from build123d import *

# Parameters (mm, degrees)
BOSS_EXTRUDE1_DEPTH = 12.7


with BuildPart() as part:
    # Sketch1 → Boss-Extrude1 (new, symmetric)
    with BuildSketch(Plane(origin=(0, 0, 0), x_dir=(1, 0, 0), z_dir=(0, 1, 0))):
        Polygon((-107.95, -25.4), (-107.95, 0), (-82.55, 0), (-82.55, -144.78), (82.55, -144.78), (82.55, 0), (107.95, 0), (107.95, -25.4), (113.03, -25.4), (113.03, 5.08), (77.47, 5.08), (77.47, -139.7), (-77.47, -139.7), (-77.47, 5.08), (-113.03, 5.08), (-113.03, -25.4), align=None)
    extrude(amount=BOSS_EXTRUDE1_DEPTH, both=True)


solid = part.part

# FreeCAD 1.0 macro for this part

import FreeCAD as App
import Part
import Sketcher
Q = App.Units.Quantity

doc = App.newDocument("Part")
body = doc.addObject("PartDesign::Body", "Body")

sketch1 = body.newObject("Sketcher::SketchObject", "Sketch")
sketch1.AttachmentSupport = (doc.getObject("XZ_Plane"), [""])
sketch1.MapMode = "FlatFace"
sketch1.addGeometry(Part.LineSegment(App.Vector(-107.95, 25.4, 0), App.Vector(-107.95, 0, 0)), False)
sketch1.addGeometry(Part.LineSegment(App.Vector(-107.95, 0, 0), App.Vector(-82.55, 0, 0)), False)
sketch1.addGeometry(Part.LineSegment(App.Vector(-82.55, 0, 0), App.Vector(-82.55, 144.78, 0)), False)
sketch1.addGeometry(Part.LineSegment(App.Vector(-82.55, 144.78, 0), App.Vector(82.55, 144.78, 0)), False)
sketch1.addGeometry(Part.LineSegment(App.Vector(82.55, 144.78, 0), App.Vector(82.55, 0, 0)), False)
sketch1.addGeometry(Part.LineSegment(App.Vector(82.55, 0, 0), App.Vector(107.95, 0, 0)), False)
sketch1.addGeometry(Part.LineSegment(App.Vector(107.95, 0, 0), App.Vector(107.95, 25.4, 0)), False)
sketch1.addGeometry(Part.LineSegment(App.Vector(107.95, 25.4, 0), App.Vector(113.03, 25.4, 0)), False)
sketch1.addGeometry(Part.LineSegment(App.Vector(113.03, 25.4, 0), App.Vector(113.03, -5.08, 0)), False)
sketch1.addGeometry(Part.LineSegment(App.Vector(113.03, -5.08, 0), App.Vector(77.47, -5.08, 0)), False)
sketch1.addGeometry(Part.LineSegment(App.Vector(77.47, -5.08, 0), App.Vector(77.47, 139.7, 0)), False)
sketch1.addGeometry(Part.LineSegment(App.Vector(77.47, 139.7, 0), App.Vector(-77.47, 139.7, 0)), False)
sketch1.addGeometry(Part.LineSegment(App.Vector(-77.47, 139.7, 0), App.Vector(-77.47, -5.08, 0)), False)
sketch1.addGeometry(Part.LineSegment(App.Vector(-77.47, -5.08, 0), App.Vector(-113.03, -5.08, 0)), False)
sketch1.addGeometry(Part.LineSegment(App.Vector(-113.03, -5.08, 0), App.Vector(-113.03, 25.4, 0)), False)
sketch1.addGeometry(Part.LineSegment(App.Vector(-113.03, 25.4, 0), App.Vector(-107.95, 25.4, 0)), False)
sketch1.addConstraint(Sketcher.Constraint("Coincident", 0, 2, 1, 1))
sketch1.addConstraint(Sketcher.Constraint("Coincident", 1, 2, 2, 1))
sketch1.addConstraint(Sketcher.Constraint("Coincident", 2, 2, 3, 1))
sketch1.addConstraint(Sketcher.Constraint("Coincident", 3, 2, 4, 1))
sketch1.addConstraint(Sketcher.Constraint("Coincident", 4, 2, 5, 1))
sketch1.addConstraint(Sketcher.Constraint("Coincident", 5, 2, 6, 1))
sketch1.addConstraint(Sketcher.Constraint("Coincident", 6, 2, 7, 1))
sketch1.addConstraint(Sketcher.Constraint("Coincident", 7, 2, 8, 1))
sketch1.addConstraint(Sketcher.Constraint("Coincident", 8, 2, 9, 1))
sketch1.addConstraint(Sketcher.Constraint("Coincident", 9, 2, 10, 1))
sketch1.addConstraint(Sketcher.Constraint("Coincident", 10, 2, 11, 1))
sketch1.addConstraint(Sketcher.Constraint("Coincident", 11, 2, 12, 1))
sketch1.addConstraint(Sketcher.Constraint("Coincident", 12, 2, 13, 1))
sketch1.addConstraint(Sketcher.Constraint("Coincident", 13, 2, 14, 1))
sketch1.addConstraint(Sketcher.Constraint("Coincident", 14, 2, 15, 1))
sketch1.addConstraint(Sketcher.Constraint("Coincident", 15, 2, 0, 1))
sketch1.addConstraint(Sketcher.Constraint("Vertical", 0))
sketch1.addConstraint(Sketcher.Constraint("Horizontal", 1))
sketch1.addConstraint(Sketcher.Constraint("Vertical", 2))
sketch1.addConstraint(Sketcher.Constraint("Horizontal", 3))
sketch1.addConstraint(Sketcher.Constraint("Vertical", 4))
sketch1.addConstraint(Sketcher.Constraint("Horizontal", 5))
sketch1.addConstraint(Sketcher.Constraint("Vertical", 6))
sketch1.addConstraint(Sketcher.Constraint("Horizontal", 7))
sketch1.addConstraint(Sketcher.Constraint("Vertical", 8))
sketch1.addConstraint(Sketcher.Constraint("Horizontal", 9))
sketch1.addConstraint(Sketcher.Constraint("Vertical", 10))
sketch1.addConstraint(Sketcher.Constraint("Horizontal", 11))
sketch1.addConstraint(Sketcher.Constraint("Vertical", 12))
sketch1.addConstraint(Sketcher.Constraint("Horizontal", 13))
sketch1.addConstraint(Sketcher.Constraint("Vertical", 14))
sketch1.addConstraint(Sketcher.Constraint("Horizontal", 15))
sketch1.addConstraint(Sketcher.Constraint("Symmetric", 1, 2, 4, 2, -1, 1))
sketch1.addConstraint(Sketcher.Constraint("Symmetric", 0, 2, 5, 2, -2))
sketch1.addConstraint(Sketcher.Constraint("Symmetric", 9, 2, 12, 2, -2))
sketch1.addConstraint(Sketcher.Constraint("Symmetric", 7, 2, 14, 2, -2))
sketch1.addConstraint(Sketcher.Constraint("Equal", 5, 0))
sketch1.addConstraint(Sketcher.Constraint("Equal", 4, 10))
sketch1.addConstraint(Sketcher.Constraint("DistanceX", 1, 1, 1, 2, Q("1 in")))
sketch1.addConstraint(Sketcher.Constraint("DistanceX", 3, 1, 3, 2, Q("6.5 in")))
sketch1.addConstraint(Sketcher.Constraint("DistanceX", 7, 1, 7, 2, Q("0.2 in")))
sketch1.addConstraint(Sketcher.Constraint("DistanceX", 9, 2, 9, 1, Q("1.4 in")))
sketch1.addConstraint(Sketcher.Constraint("DistanceY", 2, 1, 2, 2, Q("5.7 in")))
sketch1.addConstraint(Sketcher.Constraint("DistanceY", 8, 2, 8, 1, Q("1.2 in")))
pad1 = body.newObject("PartDesign::Pad", "Pad")
pad1.Profile = sketch1
pad1.Length = Q("1 in")
pad1.Midplane = True

doc.recompute()
